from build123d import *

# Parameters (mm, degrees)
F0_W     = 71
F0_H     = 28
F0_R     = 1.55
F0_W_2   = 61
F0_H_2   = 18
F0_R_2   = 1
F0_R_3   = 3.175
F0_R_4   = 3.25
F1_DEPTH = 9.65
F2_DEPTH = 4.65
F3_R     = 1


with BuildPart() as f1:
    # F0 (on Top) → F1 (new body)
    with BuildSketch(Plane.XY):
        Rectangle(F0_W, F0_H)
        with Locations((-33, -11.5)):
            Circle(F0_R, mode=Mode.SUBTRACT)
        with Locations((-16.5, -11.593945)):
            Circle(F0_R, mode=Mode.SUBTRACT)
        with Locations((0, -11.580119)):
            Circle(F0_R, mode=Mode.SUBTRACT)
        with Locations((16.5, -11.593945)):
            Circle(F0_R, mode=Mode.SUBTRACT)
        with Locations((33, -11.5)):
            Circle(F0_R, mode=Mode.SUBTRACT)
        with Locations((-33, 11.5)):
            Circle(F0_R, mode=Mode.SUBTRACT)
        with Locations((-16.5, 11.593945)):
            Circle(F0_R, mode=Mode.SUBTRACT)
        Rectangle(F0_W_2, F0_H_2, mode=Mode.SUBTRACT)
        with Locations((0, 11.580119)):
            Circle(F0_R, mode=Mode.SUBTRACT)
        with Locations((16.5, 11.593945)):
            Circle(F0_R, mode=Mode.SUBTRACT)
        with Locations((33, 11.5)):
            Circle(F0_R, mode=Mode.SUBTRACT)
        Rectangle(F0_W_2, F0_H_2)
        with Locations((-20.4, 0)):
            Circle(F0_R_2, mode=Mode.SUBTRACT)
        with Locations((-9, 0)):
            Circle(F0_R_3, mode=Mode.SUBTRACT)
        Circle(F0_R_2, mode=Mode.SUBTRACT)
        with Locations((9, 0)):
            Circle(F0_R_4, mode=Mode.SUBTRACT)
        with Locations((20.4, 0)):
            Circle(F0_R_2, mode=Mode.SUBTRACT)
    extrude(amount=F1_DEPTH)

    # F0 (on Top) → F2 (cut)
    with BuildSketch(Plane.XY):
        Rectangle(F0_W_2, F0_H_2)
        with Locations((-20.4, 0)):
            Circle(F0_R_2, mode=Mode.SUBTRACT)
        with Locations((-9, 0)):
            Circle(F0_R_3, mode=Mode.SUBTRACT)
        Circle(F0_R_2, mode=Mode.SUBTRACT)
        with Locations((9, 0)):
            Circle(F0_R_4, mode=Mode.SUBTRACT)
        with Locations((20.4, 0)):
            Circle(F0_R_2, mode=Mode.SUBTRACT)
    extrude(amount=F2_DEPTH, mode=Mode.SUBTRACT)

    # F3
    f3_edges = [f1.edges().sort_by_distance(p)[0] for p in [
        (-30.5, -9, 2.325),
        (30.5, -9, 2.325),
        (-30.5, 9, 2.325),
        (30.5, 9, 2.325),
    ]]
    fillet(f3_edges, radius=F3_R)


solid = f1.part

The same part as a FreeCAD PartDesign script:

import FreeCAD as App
import Part
import Sketcher
from FreeCAD import Vector


def edges_at(feature, points):
    """Names of the edges that pass closest to the given points."""
    edges = feature.Shape.Edges
    near = lambda p: min(range(len(edges)), key=lambda i: edges[i].distToShape(Part.Vertex(*p))[0])
    return sorted({f"Edge{near(p) + 1}" for p in points})


def add_polygon(sketch, points):
    """Adds a closed chain of lines whose ends are joined by coincident constraints."""
    first, n = sketch.GeometryCount, len(points)
    for a, b in zip(points, points[1:] + points[:1]):
        sketch.addGeometry(Part.LineSegment(App.Vector(*a, 0), App.Vector(*b, 0)), False)
    for i in range(n):
        sketch.addConstraint(Sketcher.Constraint("Coincident", first + i, 2, first + (i + 1) % n, 1))

doc = App.newDocument("Part")
body = doc.addObject("PartDesign::Body", "Body")

# Sketch on XY plane
sketch1 = body.newObject("Sketcher::SketchObject", "Sketch")
sketch1.AttachmentSupport = (doc.getObject("XY_Plane"), [""])
sketch1.MapMode = "FlatFace"
add_polygon(sketch1, [(-35.5, 14), (-35.5, -14), (35.5, -14), (35.5, 14)])  # lines 0-3
sketch1.addGeometry(Part.Circle(Vector(-33, -11.5, 0), Vector(0, 0, 1), 1.6), False)  # 4
sketch1.addGeometry(Part.Circle(Vector(-16.5, -11.6, 0), Vector(0, 0, 1), 1.6), False)  # 5
sketch1.addGeometry(Part.Circle(Vector(0, -11.6, 0), Vector(0, 0, 1), 1.6), False)  # 6
sketch1.addGeometry(Part.Circle(Vector(16.5, -11.6, 0), Vector(0, 0, 1), 1.6), False)  # 7
sketch1.addGeometry(Part.Circle(Vector(33, -11.5, 0), Vector(0, 0, 1), 1.6), False)  # 8
sketch1.addGeometry(Part.Circle(Vector(-20.4, 0, 0), Vector(0, 0, 1), 1), False)  # 9
sketch1.addGeometry(Part.Circle(Vector(-9, 0, 0), Vector(0, 0, 1), 3.2), False)  # 10
sketch1.addGeometry(Part.Circle(Vector(-33, 11.5, 0), Vector(0, 0, 1), 1.6), False)  # 11
sketch1.addGeometry(Part.Circle(Vector(-16.5, 11.6, 0), Vector(0, 0, 1), 1.6), False)  # 12
sketch1.addGeometry(Part.Circle(Vector(0, 0, 0), Vector(0, 0, 1), 1), False)  # 13
sketch1.addGeometry(Part.Circle(Vector(9, 0, 0), Vector(0, 0, 1), 3.2), False)  # 14
sketch1.addGeometry(Part.Circle(Vector(20.4, 0, 0), Vector(0, 0, 1), 1), False)  # 15
sketch1.addGeometry(Part.Circle(Vector(0, 11.6, 0), Vector(0, 0, 1), 1.6), False)  # 16
sketch1.addGeometry(Part.Circle(Vector(16.5, 11.6, 0), Vector(0, 0, 1), 1.6), False)  # 17
sketch1.addGeometry(Part.Circle(Vector(33, 11.5, 0), Vector(0, 0, 1), 1.6), False)  # 18
sketch1.addConstraint([
    Sketcher.Constraint("Vertical", 0),
    Sketcher.Constraint("Horizontal", 1),
    Sketcher.Constraint("Vertical", 2),
    Sketcher.Constraint("Horizontal", 3),
    Sketcher.Constraint("Coincident", 13, 3, -1, 1),
    Sketcher.Constraint("Equal", 4, 5),
    Sketcher.Constraint("Equal", 5, 6),
    Sketcher.Constraint("Equal", 6, 7),
    Sketcher.Constraint("Equal", 7, 8),
    Sketcher.Constraint("Equal", 8, 11),
    Sketcher.Constraint("Equal", 11, 12),
    Sketcher.Constraint("Equal", 9, 13),
    Sketcher.Constraint("Equal", 13, 15),
    Sketcher.Constraint("Equal", 12, 16),
    Sketcher.Constraint("Equal", 16, 17),
    Sketcher.Constraint("Equal", 17, 18),
    Sketcher.Constraint("Symmetric", 8, 3, 11, 3, -1, 1),
    Sketcher.Constraint("Symmetric", 7, 3, 12, 3, -1, 1),
    Sketcher.Constraint("Symmetric", 10, 3, 14, 3, -1, 1),
    Sketcher.Constraint("Symmetric", 9, 3, 15, 3, -1, 1),
    Sketcher.Constraint("Symmetric", 6, 3, 16, 3, -1, 1),
    Sketcher.Constraint("Symmetric", 5, 3, 17, 3, -1, 1),
    Sketcher.Constraint("Symmetric", 4, 3, 18, 3, -1, 1),
    Sketcher.Constraint("Symmetric", 0, 2, 2, 2, -1, 1),
    Sketcher.Constraint("Symmetric", 5, 3, 7, 3, -2),
    Sketcher.Constraint("Symmetric", 4, 3, 8, 3, -2),
    Sketcher.Constraint("PointOnObject", 6, 3, -2),
    Sketcher.Constraint("PointOnObject", 9, 3, -1),
    Sketcher.Constraint("PointOnObject", 10, 3, -1),
    Sketcher.Constraint("Diameter", 9, 2.0),
    Sketcher.Constraint("Diameter", 4, 3.1),
    Sketcher.Constraint("Diameter", 14, 6.5),
    Sketcher.Constraint("Diameter", 10, 6.35),
    Sketcher.Constraint("DistanceX", 1, 1, 1, 2, 71.0),
    Sketcher.Constraint("DistanceY", 0, 2, 0, 1, 28.0),
    Sketcher.Constraint("DistanceX", 4, 3, -1, 1, 33.0),
    Sketcher.Constraint("DistanceX", 10, 3, -1, 1, 9.0),
    Sketcher.Constraint("DistanceX", 5, 3, 7, 3, 33.0),
    Sketcher.Constraint("DistanceY", 4, 3, 11, 3, 23.0),
    Sketcher.Constraint("DistanceX", 9, 3, -1, 1, 20.4),
    Sketcher.Constraint("DistanceY", 6, 3, -1, 1, 11.580119),
    Sketcher.Constraint("DistanceY", 5, 3, 12, 3, 23.18789),
])
pad1 = body.newObject("PartDesign::Pad", "Pad")
pad1.Profile = sketch1
pad1.Length = 9.65

# Sketch on XY plane
sketch2 = body.newObject("Sketcher::SketchObject", "Sketch001")
sketch2.AttachmentSupport = (doc.getObject("XY_Plane"), [""])
sketch2.MapMode = "FlatFace"
add_polygon(sketch2, [(-30.5, 9), (-30.5, -9), (30.5, -9), (30.5, 9)])  # lines 0-3
sketch2.addGeometry(Part.Circle(Vector(-20.4, 0, 0), Vector(0, 0, 1), 1), False)  # 4
sketch2.addGeometry(Part.Circle(Vector(-9, 0, 0), Vector(0, 0, 1), 3.2), False)  # 5
sketch2.addGeometry(Part.Circle(Vector(0, 0, 0), Vector(0, 0, 1), 1), False)  # 6
sketch2.addGeometry(Part.Circle(Vector(9, 0, 0), Vector(0, 0, 1), 3.2), False)  # 7
sketch2.addGeometry(Part.Circle(Vector(20.4, 0, 0), Vector(0, 0, 1), 1), False)  # 8
sketch2.addConstraint([
    Sketcher.Constraint("Vertical", 0),
    Sketcher.Constraint("Horizontal", 1),
    Sketcher.Constraint("Vertical", 2),
    Sketcher.Constraint("Horizontal", 3),
    Sketcher.Constraint("Coincident", 6, 3, -1, 1),
    Sketcher.Constraint("Equal", 4, 6),
    Sketcher.Constraint("Equal", 6, 8),
    Sketcher.Constraint("Symmetric", 5, 3, 7, 3, -1, 1),
    Sketcher.Constraint("Symmetric", 4, 3, 8, 3, -1, 1),
    Sketcher.Constraint("Symmetric", 0, 2, 2, 2, -1, 1),
    Sketcher.Constraint("PointOnObject", 4, 3, -1),
    Sketcher.Constraint("PointOnObject", 5, 3, -1),
    Sketcher.Constraint("Diameter", 4, 2.0),
    Sketcher.Constraint("Diameter", 7, 6.5),
    Sketcher.Constraint("Diameter", 5, 6.35),
    Sketcher.Constraint("DistanceX", 1, 1, 1, 2, 61.0),
    Sketcher.Constraint("DistanceY", 0, 2, 0, 1, 18.0),
    Sketcher.Constraint("DistanceX", 5, 3, -1, 1, 9.0),
    Sketcher.Constraint("DistanceX", 4, 3, -1, 1, 20.4),
])
pocket1 = body.newObject("PartDesign::Pocket", "Pocket")
pocket1.Profile = sketch2
pocket1.Length = 4.65
pocket1.Reversed = True
doc.recompute()

fillet = body.newObject("PartDesign::Fillet", "Fillet")
fillet.Base = (pocket1, edges_at(pocket1, [
    (-30.5, -9, 2.325),
    (30.5, -9, 2.325),
    (-30.5, 9, 2.325),
    (30.5, 9, 2.325),
]))
fillet.Radius = 1

doc.recompute()
